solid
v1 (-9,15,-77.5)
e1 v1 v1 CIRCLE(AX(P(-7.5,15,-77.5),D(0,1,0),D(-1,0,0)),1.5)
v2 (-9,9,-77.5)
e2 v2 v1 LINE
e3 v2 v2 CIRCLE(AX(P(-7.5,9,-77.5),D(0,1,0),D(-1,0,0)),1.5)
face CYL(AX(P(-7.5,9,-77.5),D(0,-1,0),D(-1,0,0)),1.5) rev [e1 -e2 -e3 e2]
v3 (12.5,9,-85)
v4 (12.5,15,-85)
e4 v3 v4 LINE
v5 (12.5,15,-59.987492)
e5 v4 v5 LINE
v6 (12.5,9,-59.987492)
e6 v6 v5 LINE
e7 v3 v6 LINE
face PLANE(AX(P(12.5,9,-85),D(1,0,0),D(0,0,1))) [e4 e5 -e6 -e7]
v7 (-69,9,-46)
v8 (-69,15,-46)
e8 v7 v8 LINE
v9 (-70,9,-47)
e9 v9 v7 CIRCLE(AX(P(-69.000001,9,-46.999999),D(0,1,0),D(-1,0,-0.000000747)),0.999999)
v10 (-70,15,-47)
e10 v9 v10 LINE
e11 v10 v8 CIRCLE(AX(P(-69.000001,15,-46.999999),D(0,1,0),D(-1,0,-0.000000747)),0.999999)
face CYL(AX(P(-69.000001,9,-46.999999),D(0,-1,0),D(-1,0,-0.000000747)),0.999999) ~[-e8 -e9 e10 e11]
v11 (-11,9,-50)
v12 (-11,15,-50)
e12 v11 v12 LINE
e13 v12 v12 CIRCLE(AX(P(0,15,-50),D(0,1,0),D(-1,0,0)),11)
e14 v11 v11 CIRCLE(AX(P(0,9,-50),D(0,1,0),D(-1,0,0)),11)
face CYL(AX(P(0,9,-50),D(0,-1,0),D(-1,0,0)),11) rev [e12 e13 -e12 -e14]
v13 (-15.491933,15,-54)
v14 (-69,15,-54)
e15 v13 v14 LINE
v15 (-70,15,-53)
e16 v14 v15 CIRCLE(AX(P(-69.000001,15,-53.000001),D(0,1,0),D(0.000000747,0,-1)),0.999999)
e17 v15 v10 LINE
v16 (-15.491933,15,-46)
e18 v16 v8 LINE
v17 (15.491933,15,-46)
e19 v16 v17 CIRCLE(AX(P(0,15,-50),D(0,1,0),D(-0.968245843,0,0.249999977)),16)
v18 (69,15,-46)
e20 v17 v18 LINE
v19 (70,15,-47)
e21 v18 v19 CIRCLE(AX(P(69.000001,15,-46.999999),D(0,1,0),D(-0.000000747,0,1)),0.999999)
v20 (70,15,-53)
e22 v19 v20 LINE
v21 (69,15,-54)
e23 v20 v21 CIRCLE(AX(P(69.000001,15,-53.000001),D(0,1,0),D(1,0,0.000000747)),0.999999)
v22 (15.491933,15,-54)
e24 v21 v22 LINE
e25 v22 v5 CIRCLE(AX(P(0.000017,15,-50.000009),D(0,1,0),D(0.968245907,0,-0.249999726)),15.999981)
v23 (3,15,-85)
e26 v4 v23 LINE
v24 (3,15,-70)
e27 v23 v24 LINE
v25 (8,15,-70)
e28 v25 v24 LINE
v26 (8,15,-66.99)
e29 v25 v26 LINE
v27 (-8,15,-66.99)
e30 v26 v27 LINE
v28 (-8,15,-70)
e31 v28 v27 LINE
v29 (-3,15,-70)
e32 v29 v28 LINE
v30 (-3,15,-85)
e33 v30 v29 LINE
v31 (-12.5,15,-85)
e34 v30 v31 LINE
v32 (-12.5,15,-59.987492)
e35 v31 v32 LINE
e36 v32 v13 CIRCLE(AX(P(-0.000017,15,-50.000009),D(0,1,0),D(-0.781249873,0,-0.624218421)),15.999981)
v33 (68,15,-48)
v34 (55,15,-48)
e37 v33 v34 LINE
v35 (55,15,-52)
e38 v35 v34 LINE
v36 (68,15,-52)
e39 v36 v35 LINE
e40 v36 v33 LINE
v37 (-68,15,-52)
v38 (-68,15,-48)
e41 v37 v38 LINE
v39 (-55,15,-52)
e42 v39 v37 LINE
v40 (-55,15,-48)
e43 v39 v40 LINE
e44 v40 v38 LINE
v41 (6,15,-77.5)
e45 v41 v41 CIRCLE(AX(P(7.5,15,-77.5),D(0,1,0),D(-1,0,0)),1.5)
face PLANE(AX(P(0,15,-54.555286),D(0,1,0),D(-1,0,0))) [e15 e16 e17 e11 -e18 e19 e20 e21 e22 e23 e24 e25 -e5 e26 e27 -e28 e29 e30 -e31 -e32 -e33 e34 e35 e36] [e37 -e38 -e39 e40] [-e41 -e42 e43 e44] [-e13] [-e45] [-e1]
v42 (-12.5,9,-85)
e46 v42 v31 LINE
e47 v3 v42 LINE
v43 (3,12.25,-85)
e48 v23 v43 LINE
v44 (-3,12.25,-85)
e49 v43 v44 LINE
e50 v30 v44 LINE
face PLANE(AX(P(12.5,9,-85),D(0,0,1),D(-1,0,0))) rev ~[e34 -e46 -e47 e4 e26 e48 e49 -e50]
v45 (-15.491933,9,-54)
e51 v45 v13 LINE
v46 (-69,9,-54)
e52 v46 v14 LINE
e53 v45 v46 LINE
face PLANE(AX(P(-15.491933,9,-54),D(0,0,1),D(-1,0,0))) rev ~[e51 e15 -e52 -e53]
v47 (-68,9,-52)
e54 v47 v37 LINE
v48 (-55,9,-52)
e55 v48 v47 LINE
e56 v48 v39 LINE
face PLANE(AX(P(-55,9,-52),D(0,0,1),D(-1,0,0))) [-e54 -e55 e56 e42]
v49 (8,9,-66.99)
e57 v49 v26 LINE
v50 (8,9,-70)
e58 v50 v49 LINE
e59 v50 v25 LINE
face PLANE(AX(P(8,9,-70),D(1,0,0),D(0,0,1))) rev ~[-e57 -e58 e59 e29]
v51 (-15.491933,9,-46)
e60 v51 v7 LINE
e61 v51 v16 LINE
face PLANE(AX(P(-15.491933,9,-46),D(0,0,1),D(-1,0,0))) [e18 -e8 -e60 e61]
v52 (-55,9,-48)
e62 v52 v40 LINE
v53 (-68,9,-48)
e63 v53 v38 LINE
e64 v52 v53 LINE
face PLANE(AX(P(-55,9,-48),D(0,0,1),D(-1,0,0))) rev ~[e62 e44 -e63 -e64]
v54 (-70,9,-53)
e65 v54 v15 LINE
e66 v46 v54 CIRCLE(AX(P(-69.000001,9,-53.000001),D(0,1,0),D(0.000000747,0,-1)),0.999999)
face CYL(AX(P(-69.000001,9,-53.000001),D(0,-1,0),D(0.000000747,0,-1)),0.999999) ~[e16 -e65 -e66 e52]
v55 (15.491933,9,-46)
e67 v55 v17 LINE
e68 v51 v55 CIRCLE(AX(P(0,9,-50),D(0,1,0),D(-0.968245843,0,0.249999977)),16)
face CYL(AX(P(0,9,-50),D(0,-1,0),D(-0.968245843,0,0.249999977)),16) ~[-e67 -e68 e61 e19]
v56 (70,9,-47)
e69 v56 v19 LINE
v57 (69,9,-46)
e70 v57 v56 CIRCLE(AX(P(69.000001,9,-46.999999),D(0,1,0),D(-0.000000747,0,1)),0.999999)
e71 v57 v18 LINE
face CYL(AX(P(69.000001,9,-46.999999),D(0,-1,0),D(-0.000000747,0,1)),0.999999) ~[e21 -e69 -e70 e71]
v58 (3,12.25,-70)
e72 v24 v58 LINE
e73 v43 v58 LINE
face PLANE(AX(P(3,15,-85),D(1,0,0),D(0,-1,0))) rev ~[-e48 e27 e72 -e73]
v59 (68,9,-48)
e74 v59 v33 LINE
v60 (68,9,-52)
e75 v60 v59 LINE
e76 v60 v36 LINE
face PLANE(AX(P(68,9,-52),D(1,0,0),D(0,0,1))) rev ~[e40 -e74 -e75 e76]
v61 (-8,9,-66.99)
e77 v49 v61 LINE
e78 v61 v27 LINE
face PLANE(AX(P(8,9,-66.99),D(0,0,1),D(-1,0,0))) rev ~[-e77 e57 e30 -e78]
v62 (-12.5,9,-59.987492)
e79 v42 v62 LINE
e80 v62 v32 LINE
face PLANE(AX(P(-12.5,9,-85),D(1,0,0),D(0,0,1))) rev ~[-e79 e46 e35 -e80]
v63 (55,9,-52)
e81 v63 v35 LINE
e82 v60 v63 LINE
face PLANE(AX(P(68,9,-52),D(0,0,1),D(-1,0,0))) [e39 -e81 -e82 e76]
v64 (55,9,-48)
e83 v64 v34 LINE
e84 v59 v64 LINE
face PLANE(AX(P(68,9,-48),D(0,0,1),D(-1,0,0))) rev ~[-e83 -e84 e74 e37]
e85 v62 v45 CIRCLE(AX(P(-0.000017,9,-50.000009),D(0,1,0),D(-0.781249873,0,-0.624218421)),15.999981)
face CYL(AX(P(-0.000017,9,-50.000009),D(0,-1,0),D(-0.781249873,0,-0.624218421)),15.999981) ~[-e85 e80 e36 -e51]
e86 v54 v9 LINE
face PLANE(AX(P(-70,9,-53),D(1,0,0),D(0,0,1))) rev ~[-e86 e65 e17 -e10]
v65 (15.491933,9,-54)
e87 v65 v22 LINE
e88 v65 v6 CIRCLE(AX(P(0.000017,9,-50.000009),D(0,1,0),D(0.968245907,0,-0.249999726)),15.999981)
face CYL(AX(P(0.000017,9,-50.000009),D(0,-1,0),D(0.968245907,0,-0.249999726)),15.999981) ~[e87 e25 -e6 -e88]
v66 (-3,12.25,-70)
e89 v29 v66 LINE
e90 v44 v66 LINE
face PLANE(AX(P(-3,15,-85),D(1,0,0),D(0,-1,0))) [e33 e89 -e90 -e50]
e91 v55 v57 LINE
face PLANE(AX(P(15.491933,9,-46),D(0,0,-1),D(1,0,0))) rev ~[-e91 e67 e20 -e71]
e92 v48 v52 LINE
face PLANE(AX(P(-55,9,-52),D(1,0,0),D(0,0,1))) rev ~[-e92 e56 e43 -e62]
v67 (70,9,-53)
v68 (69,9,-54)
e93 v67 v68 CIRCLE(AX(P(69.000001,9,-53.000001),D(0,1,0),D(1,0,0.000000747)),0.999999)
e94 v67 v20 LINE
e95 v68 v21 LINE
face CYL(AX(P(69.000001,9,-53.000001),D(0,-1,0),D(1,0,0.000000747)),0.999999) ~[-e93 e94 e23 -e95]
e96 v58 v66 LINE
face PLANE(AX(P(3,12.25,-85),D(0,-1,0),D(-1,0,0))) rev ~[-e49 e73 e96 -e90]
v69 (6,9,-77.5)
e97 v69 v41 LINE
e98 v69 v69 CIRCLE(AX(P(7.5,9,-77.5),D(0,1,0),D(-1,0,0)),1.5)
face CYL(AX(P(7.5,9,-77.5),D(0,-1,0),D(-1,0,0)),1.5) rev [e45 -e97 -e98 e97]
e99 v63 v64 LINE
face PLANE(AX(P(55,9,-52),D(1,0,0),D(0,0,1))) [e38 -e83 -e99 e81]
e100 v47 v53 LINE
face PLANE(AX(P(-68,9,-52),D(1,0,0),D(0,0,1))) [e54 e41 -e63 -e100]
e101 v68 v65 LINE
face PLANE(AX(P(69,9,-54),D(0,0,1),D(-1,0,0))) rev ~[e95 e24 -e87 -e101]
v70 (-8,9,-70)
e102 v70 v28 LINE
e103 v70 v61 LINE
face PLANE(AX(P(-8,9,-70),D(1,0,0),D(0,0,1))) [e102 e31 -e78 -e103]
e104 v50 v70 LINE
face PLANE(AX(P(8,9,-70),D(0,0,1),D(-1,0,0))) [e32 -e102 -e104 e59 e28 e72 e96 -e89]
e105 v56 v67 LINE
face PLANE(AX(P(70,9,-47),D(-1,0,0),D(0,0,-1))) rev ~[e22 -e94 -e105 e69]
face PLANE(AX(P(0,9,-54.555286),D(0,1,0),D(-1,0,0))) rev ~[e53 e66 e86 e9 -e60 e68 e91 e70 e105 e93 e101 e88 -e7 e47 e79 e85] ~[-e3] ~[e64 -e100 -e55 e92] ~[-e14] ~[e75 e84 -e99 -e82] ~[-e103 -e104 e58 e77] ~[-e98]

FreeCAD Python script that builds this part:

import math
import FreeCAD as App
import Part
import Sketcher
Q = App.Units.Quantity

doc = App.newDocument("Part")
body = doc.addObject("PartDesign::Body", "Body")

sketch1 = body.newObject("Sketcher::SketchObject", "Sketch")
sketch1.AttachmentSupport = (doc.getObject("XY_Plane"), [""])
sketch1.MapMode = "FlatFace"
sketch1.AttachmentOffset = App.Placement(App.Vector(0, 0, -85), App.Rotation())
sketch1.addGeometry([
    Part.LineSegment(App.Vector(-3, 17.8, 0), App.Vector(-3, 15, 0)),
    Part.LineSegment(App.Vector(-3, 15, 0), App.Vector(3, 15, 0)),
    Part.LineSegment(App.Vector(3, 15, 0), App.Vector(3, 17.8, 0)),
    Part.LineSegment(App.Vector(3, 17.8, 0), App.Vector(-3, 17.8, 0)),
], False)
sketch1.addConstraint([
    Sketcher.Constraint("Coincident", 0, 2, 1, 1),
    Sketcher.Constraint("Coincident", 1, 2, 2, 1),
    Sketcher.Constraint("Coincident", 2, 2, 3, 1),
    Sketcher.Constraint("Coincident", 3, 2, 0, 1),
    Sketcher.Constraint("Vertical", 0),
    Sketcher.Constraint("Horizontal", 1),
    Sketcher.Constraint("Vertical", 2),
    Sketcher.Constraint("Horizontal", 3),
    Sketcher.Constraint("DistanceX", 1, 1, 1, 2, Q("6 mm")),
    Sketcher.Constraint("DistanceX", 0, 2, -1, 1, Q("3 mm")),
    Sketcher.Constraint("DistanceY", -1, 1, 0, 2, Q("15 mm")),
    Sketcher.Constraint("DistanceY", 0, 2, 0, 1, Q("2.75 mm")),
])
pad1 = body.newObject("PartDesign::Pad", "Pad")
pad1.Profile = sketch1
pad1.Length = 15
body2 = doc.addObject("PartDesign::Body", "Body001")

sketch2 = body2.newObject("Sketcher::SketchObject", "Sketch001")
sketch2.AttachmentSupport = (doc.getObject("XZ_Plane001"), [""])
sketch2.MapMode = "FlatFace"
sketch2.AttachmentOffset = App.Placement(App.Vector(0, 0, -21), App.Rotation())
sketch2.addGeometry([
    Part.ArcOfCircle(Part.Circle(App.Vector(-0.000017, -50.000009, 0), App.Vector(0, 0, 1), 15.999981), math.radians(-165.522504), math.radians(-141.375155)),
    Part.LineSegment(App.Vector(-12.5, -59.987492, 0), App.Vector(-12.5, -85, 0)),
    Part.LineSegment(App.Vector(-12.5, -85, 0), App.Vector(12.5, -85, 0)),
    Part.LineSegment(App.Vector(12.5, -85, 0), App.Vector(12.5, -59.987492, 0)),
    Part.ArcOfCircle(Part.Circle(App.Vector(0.000017, -50.000009, 0), App.Vector(0, 0, 1), 15.999981), math.radians(-38.624845), math.radians(-14.477496)),
    Part.LineSegment(App.Vector(15.491933, -54, 0), App.Vector(69, -54, 0)),
    Part.ArcOfCircle(Part.Circle(App.Vector(69.000001, -53.000001, 0), App.Vector(0, 0, 1), 0.999999), math.radians(-90.000043), math.radians(0.000043)),
    Part.LineSegment(App.Vector(70, -53, 0), App.Vector(70, -47, 0)),
    Part.ArcOfCircle(Part.Circle(App.Vector(69.000001, -46.999999, 0), App.Vector(0, 0, 1), 0.999999), math.radians(-0.000043), math.radians(90.000043)),
    Part.LineSegment(App.Vector(69, -46, 0), App.Vector(15.491933, -46, 0)),
    Part.ArcOfCircle(Part.Circle(App.Vector(0, -50, 0), App.Vector(0, 0, 1), 16), math.radians(14.477511), math.radians(165.522489)),
    Part.LineSegment(App.Vector(-15.491933, -46, 0), App.Vector(-69, -46, 0)),
    Part.ArcOfCircle(Part.Circle(App.Vector(-69.000001, -46.999999, 0), App.Vector(0, 0, 1), 0.999999), math.radians(89.999957), math.radians(180.000043)),
    Part.LineSegment(App.Vector(-70, -47, 0), App.Vector(-70, -53, 0)),
    Part.ArcOfCircle(Part.Circle(App.Vector(-69.000001, -53.000001, 0), App.Vector(0, 0, 1), 0.999999), math.radians(179.999957), math.radians(270.000043)),
    Part.LineSegment(App.Vector(-69, -54, 0), App.Vector(-15.491933, -54, 0)),
    Part.Circle(App.Vector(-7.5, -77.5, 0), App.Vector(0, 0, 1), 1.5),
    Part.Circle(App.Vector(7.5, -77.5, 0), App.Vector(0, 0, 1), 1.5),
    Part.LineSegment(App.Vector(8, -70, 0), App.Vector(-8, -70, 0)),
    Part.LineSegment(App.Vector(-8, -70, 0), App.Vector(-8, -66.99, 0)),
    Part.LineSegment(App.Vector(-8, -66.99, 0), App.Vector(8, -66.99, 0)),
    Part.LineSegment(App.Vector(8, -66.99, 0), App.Vector(8, -70, 0)),
    Part.LineSegment(App.Vector(-55, -52, 0), App.Vector(-68, -52, 0)),
    Part.LineSegment(App.Vector(-68, -52, 0), App.Vector(-68, -48, 0)),
    Part.LineSegment(App.Vector(-68, -48, 0), App.Vector(-55, -48, 0)),
    Part.LineSegment(App.Vector(-55, -48, 0), App.Vector(-55, -52, 0)),
    Part.Circle(App.Vector(0, -50, 0), App.Vector(0, 0, 1), 11),
    Part.LineSegment(App.Vector(68, -52, 0), App.Vector(55, -52, 0)),
    Part.LineSegment(App.Vector(55, -52, 0), App.Vector(55, -48, 0)),
    Part.LineSegment(App.Vector(55, -48, 0), App.Vector(68, -48, 0)),
    Part.LineSegment(App.Vector(68, -48, 0), App.Vector(68, -52, 0)),
], False)
sketch2.addConstraint([
    Sketcher.Constraint("Coincident", 0, 2, 1, 1),
    Sketcher.Constraint("Coincident", 1, 2, 2, 1),
    Sketcher.Constraint("Coincident", 2, 2, 3, 1),
    Sketcher.Constraint("Coincident", 3, 2, 4, 1),
    Sketcher.Constraint("Coincident", 4, 2, 5, 1),
    Sketcher.Constraint("Tangent", 5, 2, 6, 1),
    Sketcher.Constraint("Tangent", 6, 2, 7, 1),
    Sketcher.Constraint("Tangent", 7, 2, 8, 1),
    Sketcher.Constraint("Tangent", 8, 2, 9, 1),
    Sketcher.Constraint("Coincident", 9, 2, 10, 1),
    Sketcher.Constraint("Coincident", 10, 2, 11, 1),
    Sketcher.Constraint("Tangent", 11, 2, 12, 1),
    Sketcher.Constraint("Tangent", 12, 2, 13, 1),
    Sketcher.Constraint("Tangent", 13, 2, 14, 1),
    Sketcher.Constraint("Tangent", 14, 2, 15, 1),
    Sketcher.Constraint("Coincident", 15, 2, 0, 1),
    Sketcher.Constraint("Coincident", 18, 2, 19, 1),
    Sketcher.Constraint("Coincident", 19, 2, 20, 1),
    Sketcher.Constraint("Coincident", 20, 2, 21, 1),
    Sketcher.Constraint("Coincident", 21, 2, 18, 1),
    Sketcher.Constraint("Coincident", 22, 2, 23, 1),
    Sketcher.Constraint("Coincident", 23, 2, 24, 1),
    Sketcher.Constraint("Coincident", 24, 2, 25, 1),
    Sketcher.Constraint("Coincident", 25, 2, 22, 1),
    Sketcher.Constraint("Coincident", 27, 2, 28, 1),
    Sketcher.Constraint("Coincident", 28, 2, 29, 1),
    Sketcher.Constraint("Coincident", 29, 2, 30, 1),
    Sketcher.Constraint("Coincident", 30, 2, 27, 1),
    Sketcher.Constraint("Vertical", 1),
    Sketcher.Constraint("Horizontal", 2),
    Sketcher.Constraint("Vertical", 3),
    Sketcher.Constraint("Horizontal", 5),
    Sketcher.Constraint("Vertical", 7),
    Sketcher.Constraint("Horizontal", 9),
    Sketcher.Constraint("Horizontal", 11),
    Sketcher.Constraint("Vertical", 13),
    Sketcher.Constraint("Horizontal", 15),
    Sketcher.Constraint("Horizontal", 18),
    Sketcher.Constraint("Vertical", 19),
    Sketcher.Constraint("Horizontal", 20),
    Sketcher.Constraint("Vertical", 21),
    Sketcher.Constraint("Horizontal", 22),
    Sketcher.Constraint("Vertical", 23),
    Sketcher.Constraint("Horizontal", 24),
    Sketcher.Constraint("Vertical", 25),
    Sketcher.Constraint("Horizontal", 27),
    Sketcher.Constraint("Vertical", 28),
    Sketcher.Constraint("Horizontal", 29),
    Sketcher.Constraint("Vertical", 30),
    Sketcher.Constraint("Coincident", 26, 3, 10, 3),
    Sketcher.Constraint("Equal", 0, 4),
    Sketcher.Constraint("Equal", 6, 8),
    Sketcher.Constraint("Equal", 8, 12),
    Sketcher.Constraint("Equal", 12, 14),
    Sketcher.Constraint("Equal", 16, 17),
    Sketcher.Constraint("Symmetric", 0, 3, 4, 3, -2),
    Sketcher.Constraint("Symmetric", 8, 3, 12, 3, -2),
    Sketcher.Constraint("Symmetric", 16, 3, 17, 3, -2),
    Sketcher.Constraint("Symmetric", 25, 2, 27, 2, -2),
    Sketcher.Constraint("Symmetric", 23, 2, 29, 2, -2),
    Sketcher.Constraint("PointOnObject", 10, 3, -2),
    Sketcher.Constraint("Horizontal", 6, 3, 14, 3),
    Sketcher.Constraint("Horizontal", 0, 2, 3, 2),
    Sketcher.Constraint("Vertical", 4, 2, 9, 2),
    Sketcher.Constraint("Diameter", 16, Q("3 mm")),
    Sketcher.Constraint("Diameter", 26, Q("22 mm")),
    Sketcher.Constraint("Radius", 6, Q("0.999999 mm")),
    Sketcher.Constraint("Radius", 10, Q("16 mm")),
    Sketcher.Constraint("DistanceX", 2, 1, 2, 2, Q("25 mm")),
    Sketcher.Constraint("DistanceX", 18, 2, 18, 1, Q("16 mm")),
    Sketcher.Constraint("DistanceX", 22, 2, 22, 1, Q("13 mm")),
    Sketcher.Constraint("DistanceY", 7, 1, 7, 2, Q("6 mm")),
    Sketcher.Constraint("DistanceY", 23, 1, 23, 2, Q("4 mm")),
    Sketcher.Constraint("DistanceX", -1, 1, 6, 3, Q("69.000001 mm")),
    Sketcher.Constraint("DistanceY", 6, 3, -1, 1, Q("53.000001 mm")),
    Sketcher.Constraint("DistanceY", 10, 3, -1, 1, Q("50 mm")),
    Sketcher.Constraint("DistanceY", 1, 2, -1, 1, Q("85 mm")),
    Sketcher.Constraint("DistanceX", 18, 2, -1, 1, Q("8 mm")),
    Sketcher.Constraint("DistanceY", 18, 2, -1, 1, Q("70 mm")),
    Sketcher.Constraint("DistanceX", 22, 2, -1, 1, Q("68 mm")),
    Sketcher.Constraint("DistanceY", 22, 2, -1, 1, Q("52 mm")),
    Sketcher.Constraint("DistanceX", 16, 3, 17, 3, Q("15 mm")),
    Sketcher.Constraint("DistanceY", 19, 1, 19, 2, Q("3.01 mm")),
    Sketcher.Constraint("DistanceY", 16, 3, -1, 1, Q("77.5 mm")),
    Sketcher.Constraint("Radius", 0, Q("15.999981 mm")),
    Sketcher.Constraint("DistanceY", 1, 2, 1, 1, Q("25.012508 mm")),
])
pad2 = body2.newObject("PartDesign::Pad", "Pad001")
pad2.Profile = sketch2
pad2.Length = 6
doc.recompute()

boolean = body2.newObject("PartDesign::Boolean", "Boolean")
boolean.Type = "Cut"
boolean.addObjects([body])
body3 = doc.addObject("PartDesign::Body", "Body002")
doc.recompute()

body2.Placement = App.Placement(App.Vector(0, 30, 0), App.Rotation(App.Vector(0, 0, 1), 180))
boolean2 = body3.newObject("PartDesign::Boolean", "Boolean001")
boolean2.Type = "Fuse"
boolean2.addObjects([body2])

doc.recompute()
